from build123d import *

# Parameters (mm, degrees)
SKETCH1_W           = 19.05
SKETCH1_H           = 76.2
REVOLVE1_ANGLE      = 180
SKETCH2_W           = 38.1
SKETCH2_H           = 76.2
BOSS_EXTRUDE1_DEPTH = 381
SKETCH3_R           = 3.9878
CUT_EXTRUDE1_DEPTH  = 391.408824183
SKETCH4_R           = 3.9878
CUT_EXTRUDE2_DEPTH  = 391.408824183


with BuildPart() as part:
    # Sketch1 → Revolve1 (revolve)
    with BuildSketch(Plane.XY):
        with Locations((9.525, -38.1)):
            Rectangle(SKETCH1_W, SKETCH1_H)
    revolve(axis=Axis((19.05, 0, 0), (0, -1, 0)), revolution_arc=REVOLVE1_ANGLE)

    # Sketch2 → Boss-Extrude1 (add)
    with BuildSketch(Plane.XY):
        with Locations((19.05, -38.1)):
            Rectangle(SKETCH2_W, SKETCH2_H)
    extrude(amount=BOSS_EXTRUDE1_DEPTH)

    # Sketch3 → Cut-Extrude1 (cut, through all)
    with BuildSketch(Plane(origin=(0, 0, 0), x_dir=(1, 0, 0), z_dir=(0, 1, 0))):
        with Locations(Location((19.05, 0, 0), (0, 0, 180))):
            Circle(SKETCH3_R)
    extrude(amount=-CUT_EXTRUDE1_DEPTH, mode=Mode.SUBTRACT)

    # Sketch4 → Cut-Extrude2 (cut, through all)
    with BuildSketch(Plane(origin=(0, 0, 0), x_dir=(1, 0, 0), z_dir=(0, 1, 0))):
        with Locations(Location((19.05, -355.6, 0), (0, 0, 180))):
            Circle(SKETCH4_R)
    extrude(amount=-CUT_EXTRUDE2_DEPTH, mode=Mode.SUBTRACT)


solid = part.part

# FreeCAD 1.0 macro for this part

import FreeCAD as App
import Part
import Sketcher
from FreeCAD import Vector
Q = App.Units.Quantity

doc = App.newDocument("Part")
body = doc.addObject("PartDesign::Body", "Body")

sketch1 = body.newObject("Sketcher::SketchObject", "Sketch")
sketch1.AttachmentSupport = (doc.getObject("XY_Plane"), [""])
sketch1.MapMode = "FlatFace"
sketch1.addGeometry([
    Part.LineSegment(Vector(0, 0, 0), Vector(0, -76, 0)),
    Part.LineSegment(Vector(0, -76, 0), Vector(19, -76, 0)),
    Part.LineSegment(Vector(19, -76, 0), Vector(19, 0, 0)),
    Part.LineSegment(Vector(19, 0, 0), Vector(0, 0, 0)),
], False)
sketch1.addGeometry(Part.LineSegment(Vector(19, 0, 0), Vector(19, -76, 0)), True)
sketch1.addConstraint([
    Sketcher.Constraint("Coincident", 0, 2, 1, 1),
    Sketcher.Constraint("Coincident", 1, 2, 2, 1),
    Sketcher.Constraint("Coincident", 2, 2, 3, 1),
    Sketcher.Constraint("Coincident", 3, 2, 0, 1),
    Sketcher.Constraint("Vertical", 0),
    Sketcher.Constraint("Horizontal", 1),
    Sketcher.Constraint("Vertical", 2),
    Sketcher.Constraint("Horizontal", 3),
    Sketcher.Constraint("Vertical", 4),
    Sketcher.Constraint("Coincident", 3, 2, -1, 1),
    Sketcher.Constraint("Coincident", 4, 1, 2, 2),
    Sketcher.Constraint("Horizontal", 0, 2, 4, 2),
    Sketcher.Constraint("DistanceY", 0, 2, 0, 1, Q("3 in")),
    Sketcher.Constraint("DistanceX", 1, 1, 1, 2, Q("0.75 in")),
])
revolution = body.newObject("PartDesign::Revolution", "Revolution")
revolution.Profile = sketch1
revolution.ReferenceAxis = (sketch1, ["Axis0"])
revolution.Angle = 180

sketch2 = body.newObject("Sketcher::SketchObject", "Sketch001")
sketch2.AttachmentSupport = (doc.getObject("XY_Plane"), [""])
sketch2.MapMode = "FlatFace"
sketch2.addGeometry([
    Part.LineSegment(Vector(0, 0, 0), Vector(0, -76, 0)),
    Part.LineSegment(Vector(0, -76, 0), Vector(38, -76, 0)),
    Part.LineSegment(Vector(38, -76, 0), Vector(38, 0, 0)),
    Part.LineSegment(Vector(38, 0, 0), Vector(0, 0, 0)),
], False)
sketch2.addConstraint([
    Sketcher.Constraint("Coincident", 0, 2, 1, 1),
    Sketcher.Constraint("Coincident", 1, 2, 2, 1),
    Sketcher.Constraint("Coincident", 2, 2, 3, 1),
    Sketcher.Constraint("Coincident", 3, 2, 0, 1),
    Sketcher.Constraint("Vertical", 0),
    Sketcher.Constraint("Horizontal", 1),
    Sketcher.Constraint("Vertical", 2),
    Sketcher.Constraint("Horizontal", 3),
    Sketcher.Constraint("Coincident", 3, 2, -1, 1),
    Sketcher.Constraint("DistanceY", 0, 2, 0, 1, Q("3 in")),
    Sketcher.Constraint("DistanceX", 1, 1, 1, 2, Q("1.5 in")),
])
pad1 = body.newObject("PartDesign::Pad", "Pad")
pad1.Profile = sketch2
pad1.Length = Q("15 in")

sketch3 = body.newObject("Sketcher::SketchObject", "Sketch002")
sketch3.AttachmentSupport = (doc.getObject("XZ_Plane"), [""])
sketch3.MapMode = "FlatFace"
sketch3.addGeometry(Part.Circle(Vector(19.1, 0, 0), Vector(0, 0, 1), 4), False)
sketch3.addConstraint([
    Sketcher.Constraint("PointOnObject", 0, 3, -1),
    Sketcher.Constraint("Diameter", 0, Q("0.314 in")),
    Sketcher.Constraint("DistanceX", -1, 1, 0, 3, Q("0.75 in")),
])
pocket1 = body.newObject("PartDesign::Pocket", "Pocket")
pocket1.Profile = sketch3
pocket1.Type = "ThroughAll"
pocket1.Reversed = True

sketch4 = body.newObject("Sketcher::SketchObject", "Sketch003")
sketch4.AttachmentSupport = (doc.getObject("XZ_Plane"), [""])
sketch4.MapMode = "FlatFace"
sketch4.addGeometry(Part.Circle(Vector(19.1, 355.6, 0), Vector(0, 0, 1), 4), False)
sketch4.addConstraint([
    Sketcher.Constraint("Diameter", 0, Q("0.314 in")),
    Sketcher.Constraint("DistanceY", -1, 1, 0, 3, Q("14 in")),
    Sketcher.Constraint("DistanceX", -1, 1, 0, 3, Q("0.75 in")),
])
pocket2 = body.newObject("PartDesign::Pocket", "Pocket001")
pocket2.Profile = sketch4
pocket2.Type = "ThroughAll"
pocket2.Reversed = True

doc.recompute()
